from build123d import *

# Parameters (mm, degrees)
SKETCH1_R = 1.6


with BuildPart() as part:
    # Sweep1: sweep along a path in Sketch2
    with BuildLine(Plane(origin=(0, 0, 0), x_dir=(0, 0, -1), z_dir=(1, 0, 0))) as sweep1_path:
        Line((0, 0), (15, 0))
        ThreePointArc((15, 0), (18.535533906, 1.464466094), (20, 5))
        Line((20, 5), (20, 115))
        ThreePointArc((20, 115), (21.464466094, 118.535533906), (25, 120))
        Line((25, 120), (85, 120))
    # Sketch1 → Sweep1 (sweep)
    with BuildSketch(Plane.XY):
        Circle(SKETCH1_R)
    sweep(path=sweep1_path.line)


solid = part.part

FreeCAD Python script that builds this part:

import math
import FreeCAD as App
import Part
import Sketcher

V = App.Vector

doc = App.newDocument("Part")
params = doc.addObject("Spreadsheet::Sheet", "Params")
for row, (alias, value) in enumerate([
    ("sketch1_diameter", "3.2 mm"),
    ("sketch2_radius", "5 mm"),
    ("sketch2_width", "110 mm"),
    ("sketch2_height", "15 mm"),
    ("sketch2_height2", "60 mm"),
], start=1):
    params.set(f"A{row}", alias)
    params.set(f"B{row}", "=" + value)
    params.setAlias(f"B{row}", alias)

body = doc.addObject("PartDesign::Body", "Body")

sketch1 = doc.addObject("Sketcher::SketchObject", "Sketch")
body.addObject(sketch1)
sketch1.AttachmentSupport = (doc.XY_Plane, [""])
sketch1.MapMode = "FlatFace"
sketch1.addGeometry(Part.Circle(V(0, 0, 0), V(0, 0, 1), 1.6), False)
sketch1.addConstraint([
    Sketcher.Constraint("Coincident", 0, 3, -1, 1),
    Sketcher.Constraint("Diameter", 0, 3.2),
])
sketch1.setExpression("Constraints[1]", "Params.sketch1_diameter")

sketch2 = doc.addObject("Sketcher::SketchObject", "Sketch001")
body.addObject(sketch2)
sketch2.AttachmentSupport = (doc.YZ_Plane, [""])
sketch2.MapMode = "FlatFace"
sketch2.addGeometry([
    Part.LineSegment(V(0, 0, 0), V(0, -15, 0)),
    Part.ArcOfCircle(Part.Circle(V(5, -15, 0), V(0, 0, 1), 5), math.radians(180), math.radians(270)),
    Part.LineSegment(V(5, -20, 0), V(115, -20, 0)),
    Part.ArcOfCircle(Part.Circle(V(115, -25, 0), V(0, 0, 1), 5), math.radians(0), math.radians(90)),
    Part.LineSegment(V(120, -25, 0), V(120, -85, 0)),
], False)
sketch2.addConstraint([
    Sketcher.Constraint("Tangent", 0, 2, 1, 1),
    Sketcher.Constraint("Tangent", 1, 2, 2, 1),
    Sketcher.Constraint("Tangent", 2, 2, 3, 2),
    Sketcher.Constraint("Tangent", 3, 1, 4, 1),
    Sketcher.Constraint("Vertical", 0),
    Sketcher.Constraint("Horizontal", 2),
    Sketcher.Constraint("Vertical", 4),
    Sketcher.Constraint("Coincident", 0, 1, -1, 1),
    Sketcher.Constraint("Equal", 1, 3),
    Sketcher.Constraint("Radius", 1, 5.0),
    Sketcher.Constraint("DistanceX", 2, 1, 2, 2, 110.0),
    Sketcher.Constraint("DistanceY", 0, 2, 0, 1, 15.0),
    Sketcher.Constraint("DistanceY", 4, 2, 4, 1, 60.0),
])
sketch2.setExpression("Constraints[9]", "Params.sketch2_radius")
sketch2.setExpression("Constraints[10]", "Params.sketch2_width")
sketch2.setExpression("Constraints[11]", "Params.sketch2_height")
sketch2.setExpression("Constraints[12]", "Params.sketch2_height2")
doc.recompute()

additivepipe = doc.addObject("PartDesign::AdditivePipe", "AdditivePipe")
body.addObject(additivepipe)
additivepipe.Profile = sketch1
additivepipe.Spine = (sketch2, ["Edge1", "Edge2", "Edge3", "Edge4", "Edge5"])

doc.recompute()
